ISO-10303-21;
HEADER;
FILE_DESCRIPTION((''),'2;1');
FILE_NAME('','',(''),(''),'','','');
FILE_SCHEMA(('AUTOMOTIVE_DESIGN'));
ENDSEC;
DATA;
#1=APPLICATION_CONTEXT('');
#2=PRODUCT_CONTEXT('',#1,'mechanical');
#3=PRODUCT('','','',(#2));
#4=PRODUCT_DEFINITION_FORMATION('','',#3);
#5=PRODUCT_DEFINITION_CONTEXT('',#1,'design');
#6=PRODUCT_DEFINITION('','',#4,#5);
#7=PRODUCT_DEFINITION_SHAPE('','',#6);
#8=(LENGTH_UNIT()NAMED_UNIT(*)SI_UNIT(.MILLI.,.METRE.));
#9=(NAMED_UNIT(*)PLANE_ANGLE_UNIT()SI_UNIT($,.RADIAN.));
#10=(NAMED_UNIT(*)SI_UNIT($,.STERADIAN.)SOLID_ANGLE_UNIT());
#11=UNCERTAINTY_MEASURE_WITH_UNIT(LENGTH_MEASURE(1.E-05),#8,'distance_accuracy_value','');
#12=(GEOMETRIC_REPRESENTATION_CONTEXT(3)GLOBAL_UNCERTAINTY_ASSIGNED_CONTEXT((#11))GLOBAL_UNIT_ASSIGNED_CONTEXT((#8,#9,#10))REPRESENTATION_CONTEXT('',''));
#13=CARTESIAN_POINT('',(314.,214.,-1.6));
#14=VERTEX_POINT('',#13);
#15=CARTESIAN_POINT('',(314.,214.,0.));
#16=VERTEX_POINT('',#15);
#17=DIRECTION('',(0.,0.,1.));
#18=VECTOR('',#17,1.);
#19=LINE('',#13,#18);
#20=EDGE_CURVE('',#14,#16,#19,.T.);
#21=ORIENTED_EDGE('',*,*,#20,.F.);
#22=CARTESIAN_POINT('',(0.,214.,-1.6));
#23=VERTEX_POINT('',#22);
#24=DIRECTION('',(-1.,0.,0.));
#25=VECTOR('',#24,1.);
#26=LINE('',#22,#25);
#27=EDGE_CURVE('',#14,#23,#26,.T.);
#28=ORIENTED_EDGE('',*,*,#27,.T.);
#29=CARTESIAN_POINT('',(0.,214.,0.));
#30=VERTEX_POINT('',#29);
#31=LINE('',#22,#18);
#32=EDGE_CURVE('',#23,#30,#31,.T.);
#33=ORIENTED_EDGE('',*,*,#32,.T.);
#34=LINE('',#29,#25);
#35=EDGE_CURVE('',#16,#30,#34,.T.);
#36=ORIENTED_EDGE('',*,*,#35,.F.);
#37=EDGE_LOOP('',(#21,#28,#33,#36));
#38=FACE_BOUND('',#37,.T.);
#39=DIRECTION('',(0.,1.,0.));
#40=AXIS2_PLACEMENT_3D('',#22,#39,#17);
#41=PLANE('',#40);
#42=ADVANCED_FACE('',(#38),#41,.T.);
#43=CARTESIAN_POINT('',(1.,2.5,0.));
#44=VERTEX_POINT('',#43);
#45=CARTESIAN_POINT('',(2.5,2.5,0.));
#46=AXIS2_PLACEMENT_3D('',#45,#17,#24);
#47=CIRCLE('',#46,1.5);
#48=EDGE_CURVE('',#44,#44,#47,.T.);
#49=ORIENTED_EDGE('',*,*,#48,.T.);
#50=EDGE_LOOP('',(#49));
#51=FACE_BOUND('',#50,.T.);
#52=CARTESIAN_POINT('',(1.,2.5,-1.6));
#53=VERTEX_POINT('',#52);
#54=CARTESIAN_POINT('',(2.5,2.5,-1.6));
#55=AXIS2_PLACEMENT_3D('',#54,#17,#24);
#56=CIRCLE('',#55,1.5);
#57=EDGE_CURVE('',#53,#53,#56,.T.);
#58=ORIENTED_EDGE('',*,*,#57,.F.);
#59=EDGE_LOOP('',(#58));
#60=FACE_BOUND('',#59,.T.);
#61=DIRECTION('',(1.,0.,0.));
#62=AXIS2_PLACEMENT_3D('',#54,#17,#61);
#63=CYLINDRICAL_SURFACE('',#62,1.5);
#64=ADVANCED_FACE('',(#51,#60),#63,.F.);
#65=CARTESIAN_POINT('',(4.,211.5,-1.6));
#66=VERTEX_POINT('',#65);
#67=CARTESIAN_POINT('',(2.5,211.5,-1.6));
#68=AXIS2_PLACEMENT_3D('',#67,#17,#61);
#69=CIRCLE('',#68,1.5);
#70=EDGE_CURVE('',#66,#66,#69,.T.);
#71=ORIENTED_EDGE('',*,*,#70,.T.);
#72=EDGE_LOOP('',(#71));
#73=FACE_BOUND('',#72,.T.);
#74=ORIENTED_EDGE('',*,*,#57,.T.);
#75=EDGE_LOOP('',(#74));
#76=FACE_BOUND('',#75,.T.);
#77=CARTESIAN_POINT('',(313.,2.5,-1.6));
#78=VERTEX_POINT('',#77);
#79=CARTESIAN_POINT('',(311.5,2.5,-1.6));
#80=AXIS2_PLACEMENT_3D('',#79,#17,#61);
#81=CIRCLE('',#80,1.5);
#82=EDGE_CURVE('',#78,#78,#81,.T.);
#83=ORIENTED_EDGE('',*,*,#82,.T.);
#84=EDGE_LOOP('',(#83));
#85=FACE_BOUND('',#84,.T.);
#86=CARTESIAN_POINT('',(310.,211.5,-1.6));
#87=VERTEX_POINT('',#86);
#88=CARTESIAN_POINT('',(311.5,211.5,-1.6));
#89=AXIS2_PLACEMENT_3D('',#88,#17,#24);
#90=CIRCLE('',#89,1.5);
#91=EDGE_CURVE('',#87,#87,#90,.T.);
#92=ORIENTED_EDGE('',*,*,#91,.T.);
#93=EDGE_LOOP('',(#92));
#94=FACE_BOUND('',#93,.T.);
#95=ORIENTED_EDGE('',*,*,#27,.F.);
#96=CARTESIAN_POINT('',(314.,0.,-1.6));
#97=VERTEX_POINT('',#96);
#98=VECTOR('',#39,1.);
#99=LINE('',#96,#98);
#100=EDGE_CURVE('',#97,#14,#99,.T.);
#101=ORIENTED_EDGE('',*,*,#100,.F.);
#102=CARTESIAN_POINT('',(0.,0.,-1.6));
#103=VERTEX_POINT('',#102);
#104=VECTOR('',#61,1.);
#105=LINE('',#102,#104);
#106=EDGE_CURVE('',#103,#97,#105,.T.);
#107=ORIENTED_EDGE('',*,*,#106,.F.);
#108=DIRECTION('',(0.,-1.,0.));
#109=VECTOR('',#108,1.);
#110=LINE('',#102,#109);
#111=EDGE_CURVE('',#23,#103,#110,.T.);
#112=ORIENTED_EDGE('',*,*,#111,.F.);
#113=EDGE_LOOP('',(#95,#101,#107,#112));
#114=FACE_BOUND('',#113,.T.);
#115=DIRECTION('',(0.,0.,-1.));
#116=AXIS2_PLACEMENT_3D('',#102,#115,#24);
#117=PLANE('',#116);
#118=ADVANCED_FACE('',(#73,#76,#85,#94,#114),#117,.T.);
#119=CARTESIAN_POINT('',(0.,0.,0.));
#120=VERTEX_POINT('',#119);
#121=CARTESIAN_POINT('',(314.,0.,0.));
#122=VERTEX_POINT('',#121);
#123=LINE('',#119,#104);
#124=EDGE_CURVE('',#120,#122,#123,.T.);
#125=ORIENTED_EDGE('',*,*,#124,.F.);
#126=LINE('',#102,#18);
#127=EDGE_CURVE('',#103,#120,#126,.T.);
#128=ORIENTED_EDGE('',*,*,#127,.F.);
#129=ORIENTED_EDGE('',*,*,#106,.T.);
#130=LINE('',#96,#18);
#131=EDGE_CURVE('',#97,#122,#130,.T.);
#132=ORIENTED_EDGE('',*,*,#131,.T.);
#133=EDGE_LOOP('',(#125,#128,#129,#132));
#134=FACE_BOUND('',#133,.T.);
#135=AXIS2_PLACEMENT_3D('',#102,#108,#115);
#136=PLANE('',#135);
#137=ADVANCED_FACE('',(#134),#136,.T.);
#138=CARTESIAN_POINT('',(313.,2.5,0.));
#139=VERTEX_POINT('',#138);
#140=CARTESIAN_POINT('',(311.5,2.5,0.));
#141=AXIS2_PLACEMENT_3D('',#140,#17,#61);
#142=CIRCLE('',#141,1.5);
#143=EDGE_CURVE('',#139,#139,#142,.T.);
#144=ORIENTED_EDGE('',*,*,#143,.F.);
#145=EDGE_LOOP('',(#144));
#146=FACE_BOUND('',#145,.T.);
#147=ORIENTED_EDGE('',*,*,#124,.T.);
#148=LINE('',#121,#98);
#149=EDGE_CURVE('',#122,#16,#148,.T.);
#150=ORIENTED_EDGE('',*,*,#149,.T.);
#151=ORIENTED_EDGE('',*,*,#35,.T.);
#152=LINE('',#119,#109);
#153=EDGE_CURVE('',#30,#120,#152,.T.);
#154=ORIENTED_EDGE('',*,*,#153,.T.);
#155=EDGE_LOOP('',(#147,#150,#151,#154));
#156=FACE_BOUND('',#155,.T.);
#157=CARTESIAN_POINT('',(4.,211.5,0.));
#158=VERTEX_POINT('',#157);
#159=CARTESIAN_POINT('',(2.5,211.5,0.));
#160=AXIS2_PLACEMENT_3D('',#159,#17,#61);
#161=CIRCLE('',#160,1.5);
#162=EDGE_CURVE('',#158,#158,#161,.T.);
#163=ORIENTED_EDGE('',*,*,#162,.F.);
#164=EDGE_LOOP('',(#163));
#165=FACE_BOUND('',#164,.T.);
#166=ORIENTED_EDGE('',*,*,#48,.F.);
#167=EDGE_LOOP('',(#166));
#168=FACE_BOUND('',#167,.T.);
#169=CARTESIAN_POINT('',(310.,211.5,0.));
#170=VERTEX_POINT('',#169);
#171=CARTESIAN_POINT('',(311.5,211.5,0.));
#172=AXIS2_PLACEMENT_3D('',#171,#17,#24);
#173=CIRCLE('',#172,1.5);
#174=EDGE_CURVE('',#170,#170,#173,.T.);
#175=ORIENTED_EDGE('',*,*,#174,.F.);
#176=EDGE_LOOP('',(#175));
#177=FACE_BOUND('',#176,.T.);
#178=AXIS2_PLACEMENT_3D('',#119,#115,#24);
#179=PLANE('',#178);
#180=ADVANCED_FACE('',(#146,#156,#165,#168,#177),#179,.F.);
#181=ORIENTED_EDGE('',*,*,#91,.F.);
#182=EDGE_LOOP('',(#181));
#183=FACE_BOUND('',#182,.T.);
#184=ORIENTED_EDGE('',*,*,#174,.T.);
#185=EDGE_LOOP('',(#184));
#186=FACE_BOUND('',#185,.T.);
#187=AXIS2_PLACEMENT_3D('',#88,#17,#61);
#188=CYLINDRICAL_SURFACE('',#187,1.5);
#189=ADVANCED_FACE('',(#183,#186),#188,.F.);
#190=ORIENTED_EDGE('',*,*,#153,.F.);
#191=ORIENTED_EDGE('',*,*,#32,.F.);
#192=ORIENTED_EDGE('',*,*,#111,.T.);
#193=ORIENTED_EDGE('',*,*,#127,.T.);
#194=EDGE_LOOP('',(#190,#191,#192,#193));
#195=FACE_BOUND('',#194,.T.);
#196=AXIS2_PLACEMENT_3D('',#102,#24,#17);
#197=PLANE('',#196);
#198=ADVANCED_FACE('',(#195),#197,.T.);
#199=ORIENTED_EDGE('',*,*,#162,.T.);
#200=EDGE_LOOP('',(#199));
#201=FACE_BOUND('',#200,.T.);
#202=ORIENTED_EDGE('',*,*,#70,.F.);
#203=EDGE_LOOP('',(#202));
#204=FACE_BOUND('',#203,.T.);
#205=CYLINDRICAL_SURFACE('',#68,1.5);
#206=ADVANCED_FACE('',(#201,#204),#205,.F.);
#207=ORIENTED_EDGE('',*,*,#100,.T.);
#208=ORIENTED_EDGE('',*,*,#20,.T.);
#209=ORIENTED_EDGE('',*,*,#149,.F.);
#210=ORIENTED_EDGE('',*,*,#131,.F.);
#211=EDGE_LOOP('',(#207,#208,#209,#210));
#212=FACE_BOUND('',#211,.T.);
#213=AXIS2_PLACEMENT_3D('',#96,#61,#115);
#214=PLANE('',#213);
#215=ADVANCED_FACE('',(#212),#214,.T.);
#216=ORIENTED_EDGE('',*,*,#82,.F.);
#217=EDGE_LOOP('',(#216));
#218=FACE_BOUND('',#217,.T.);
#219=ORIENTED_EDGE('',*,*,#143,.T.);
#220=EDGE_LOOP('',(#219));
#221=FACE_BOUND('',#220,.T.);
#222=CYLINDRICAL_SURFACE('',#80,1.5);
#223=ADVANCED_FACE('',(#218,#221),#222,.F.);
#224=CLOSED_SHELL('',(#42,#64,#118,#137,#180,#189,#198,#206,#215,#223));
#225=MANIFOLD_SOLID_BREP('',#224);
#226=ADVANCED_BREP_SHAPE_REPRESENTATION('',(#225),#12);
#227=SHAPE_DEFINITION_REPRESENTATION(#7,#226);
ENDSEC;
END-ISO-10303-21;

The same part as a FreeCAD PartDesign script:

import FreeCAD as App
import Part
import Sketcher


def add_polygon(sketch, points):
    """Adds a closed chain of lines whose ends are joined by coincident constraints."""
    first, n = sketch.GeometryCount, len(points)
    for a, b in zip(points, points[1:] + points[:1]):
        sketch.addGeometry(Part.LineSegment(App.Vector(*a, 0), App.Vector(*b, 0)), False)
    for i in range(n):
        sketch.addConstraint(Sketcher.Constraint("Coincident", first + i, 2, first + (i + 1) % n, 1))

doc = App.newDocument("Part")
body = doc.addObject("PartDesign::Body", "Body")

# Sketch on XY plane
sketch1 = body.newObject("Sketcher::SketchObject", "Sketch")
sketch1.AttachmentSupport = (doc.getObject("XY_Plane"), [""])
sketch1.MapMode = "FlatFace"
add_polygon(sketch1, [(0, 214), (0, 0), (314, 0), (314, 214)])  # lines 0-3
sketch1.addGeometry(Part.Circle(App.Vector(2.5, 2.5, 0), App.Vector(0, 0, 1), 1.5), False)  # 4
sketch1.addGeometry(Part.Circle(App.Vector(311.5, 2.5, 0), App.Vector(0, 0, 1), 1.5), False)  # 5
sketch1.addGeometry(Part.Circle(App.Vector(2.5, 211.5, 0), App.Vector(0, 0, 1), 1.5), False)  # 6
sketch1.addGeometry(Part.Circle(App.Vector(311.5, 211.5, 0), App.Vector(0, 0, 1), 1.5), False)  # 7
sketch1.addConstraint([
    Sketcher.Constraint("Vertical", 0),
    Sketcher.Constraint("Horizontal", 1),
    Sketcher.Constraint("Vertical", 2),
    Sketcher.Constraint("Horizontal", 3),
    Sketcher.Constraint("Coincident", 0, 2, -1, 1),
    Sketcher.Constraint("Equal", 4, 5),
    Sketcher.Constraint("Equal", 5, 6),
    Sketcher.Constraint("Equal", 6, 7),
    Sketcher.Constraint("Horizontal", 4, 3, 5, 3),
    Sketcher.Constraint("Horizontal", 6, 3, 7, 3),
    Sketcher.Constraint("Vertical", 4, 3, 6, 3),
    Sketcher.Constraint("Vertical", 5, 3, 7, 3),
    Sketcher.Constraint("Diameter", 4, 3.0),
    Sketcher.Constraint("DistanceX", 1, 1, 1, 2, 314.0),
    Sketcher.Constraint("DistanceY", 0, 2, 0, 1, 214.0),
    Sketcher.Constraint("DistanceX", 4, 3, 5, 3, 309.0),
    Sketcher.Constraint("DistanceY", 4, 3, 6, 3, 209.0),
    Sketcher.Constraint("DistanceX", -1, 1, 4, 3, 2.5),
    Sketcher.Constraint("DistanceY", -1, 1, 4, 3, 2.5),
])
pad1 = body.newObject("PartDesign::Pad", "Pad")
pad1.Profile = sketch1
pad1.Length = 1.6
pad1.Reversed = True

doc.recompute()
